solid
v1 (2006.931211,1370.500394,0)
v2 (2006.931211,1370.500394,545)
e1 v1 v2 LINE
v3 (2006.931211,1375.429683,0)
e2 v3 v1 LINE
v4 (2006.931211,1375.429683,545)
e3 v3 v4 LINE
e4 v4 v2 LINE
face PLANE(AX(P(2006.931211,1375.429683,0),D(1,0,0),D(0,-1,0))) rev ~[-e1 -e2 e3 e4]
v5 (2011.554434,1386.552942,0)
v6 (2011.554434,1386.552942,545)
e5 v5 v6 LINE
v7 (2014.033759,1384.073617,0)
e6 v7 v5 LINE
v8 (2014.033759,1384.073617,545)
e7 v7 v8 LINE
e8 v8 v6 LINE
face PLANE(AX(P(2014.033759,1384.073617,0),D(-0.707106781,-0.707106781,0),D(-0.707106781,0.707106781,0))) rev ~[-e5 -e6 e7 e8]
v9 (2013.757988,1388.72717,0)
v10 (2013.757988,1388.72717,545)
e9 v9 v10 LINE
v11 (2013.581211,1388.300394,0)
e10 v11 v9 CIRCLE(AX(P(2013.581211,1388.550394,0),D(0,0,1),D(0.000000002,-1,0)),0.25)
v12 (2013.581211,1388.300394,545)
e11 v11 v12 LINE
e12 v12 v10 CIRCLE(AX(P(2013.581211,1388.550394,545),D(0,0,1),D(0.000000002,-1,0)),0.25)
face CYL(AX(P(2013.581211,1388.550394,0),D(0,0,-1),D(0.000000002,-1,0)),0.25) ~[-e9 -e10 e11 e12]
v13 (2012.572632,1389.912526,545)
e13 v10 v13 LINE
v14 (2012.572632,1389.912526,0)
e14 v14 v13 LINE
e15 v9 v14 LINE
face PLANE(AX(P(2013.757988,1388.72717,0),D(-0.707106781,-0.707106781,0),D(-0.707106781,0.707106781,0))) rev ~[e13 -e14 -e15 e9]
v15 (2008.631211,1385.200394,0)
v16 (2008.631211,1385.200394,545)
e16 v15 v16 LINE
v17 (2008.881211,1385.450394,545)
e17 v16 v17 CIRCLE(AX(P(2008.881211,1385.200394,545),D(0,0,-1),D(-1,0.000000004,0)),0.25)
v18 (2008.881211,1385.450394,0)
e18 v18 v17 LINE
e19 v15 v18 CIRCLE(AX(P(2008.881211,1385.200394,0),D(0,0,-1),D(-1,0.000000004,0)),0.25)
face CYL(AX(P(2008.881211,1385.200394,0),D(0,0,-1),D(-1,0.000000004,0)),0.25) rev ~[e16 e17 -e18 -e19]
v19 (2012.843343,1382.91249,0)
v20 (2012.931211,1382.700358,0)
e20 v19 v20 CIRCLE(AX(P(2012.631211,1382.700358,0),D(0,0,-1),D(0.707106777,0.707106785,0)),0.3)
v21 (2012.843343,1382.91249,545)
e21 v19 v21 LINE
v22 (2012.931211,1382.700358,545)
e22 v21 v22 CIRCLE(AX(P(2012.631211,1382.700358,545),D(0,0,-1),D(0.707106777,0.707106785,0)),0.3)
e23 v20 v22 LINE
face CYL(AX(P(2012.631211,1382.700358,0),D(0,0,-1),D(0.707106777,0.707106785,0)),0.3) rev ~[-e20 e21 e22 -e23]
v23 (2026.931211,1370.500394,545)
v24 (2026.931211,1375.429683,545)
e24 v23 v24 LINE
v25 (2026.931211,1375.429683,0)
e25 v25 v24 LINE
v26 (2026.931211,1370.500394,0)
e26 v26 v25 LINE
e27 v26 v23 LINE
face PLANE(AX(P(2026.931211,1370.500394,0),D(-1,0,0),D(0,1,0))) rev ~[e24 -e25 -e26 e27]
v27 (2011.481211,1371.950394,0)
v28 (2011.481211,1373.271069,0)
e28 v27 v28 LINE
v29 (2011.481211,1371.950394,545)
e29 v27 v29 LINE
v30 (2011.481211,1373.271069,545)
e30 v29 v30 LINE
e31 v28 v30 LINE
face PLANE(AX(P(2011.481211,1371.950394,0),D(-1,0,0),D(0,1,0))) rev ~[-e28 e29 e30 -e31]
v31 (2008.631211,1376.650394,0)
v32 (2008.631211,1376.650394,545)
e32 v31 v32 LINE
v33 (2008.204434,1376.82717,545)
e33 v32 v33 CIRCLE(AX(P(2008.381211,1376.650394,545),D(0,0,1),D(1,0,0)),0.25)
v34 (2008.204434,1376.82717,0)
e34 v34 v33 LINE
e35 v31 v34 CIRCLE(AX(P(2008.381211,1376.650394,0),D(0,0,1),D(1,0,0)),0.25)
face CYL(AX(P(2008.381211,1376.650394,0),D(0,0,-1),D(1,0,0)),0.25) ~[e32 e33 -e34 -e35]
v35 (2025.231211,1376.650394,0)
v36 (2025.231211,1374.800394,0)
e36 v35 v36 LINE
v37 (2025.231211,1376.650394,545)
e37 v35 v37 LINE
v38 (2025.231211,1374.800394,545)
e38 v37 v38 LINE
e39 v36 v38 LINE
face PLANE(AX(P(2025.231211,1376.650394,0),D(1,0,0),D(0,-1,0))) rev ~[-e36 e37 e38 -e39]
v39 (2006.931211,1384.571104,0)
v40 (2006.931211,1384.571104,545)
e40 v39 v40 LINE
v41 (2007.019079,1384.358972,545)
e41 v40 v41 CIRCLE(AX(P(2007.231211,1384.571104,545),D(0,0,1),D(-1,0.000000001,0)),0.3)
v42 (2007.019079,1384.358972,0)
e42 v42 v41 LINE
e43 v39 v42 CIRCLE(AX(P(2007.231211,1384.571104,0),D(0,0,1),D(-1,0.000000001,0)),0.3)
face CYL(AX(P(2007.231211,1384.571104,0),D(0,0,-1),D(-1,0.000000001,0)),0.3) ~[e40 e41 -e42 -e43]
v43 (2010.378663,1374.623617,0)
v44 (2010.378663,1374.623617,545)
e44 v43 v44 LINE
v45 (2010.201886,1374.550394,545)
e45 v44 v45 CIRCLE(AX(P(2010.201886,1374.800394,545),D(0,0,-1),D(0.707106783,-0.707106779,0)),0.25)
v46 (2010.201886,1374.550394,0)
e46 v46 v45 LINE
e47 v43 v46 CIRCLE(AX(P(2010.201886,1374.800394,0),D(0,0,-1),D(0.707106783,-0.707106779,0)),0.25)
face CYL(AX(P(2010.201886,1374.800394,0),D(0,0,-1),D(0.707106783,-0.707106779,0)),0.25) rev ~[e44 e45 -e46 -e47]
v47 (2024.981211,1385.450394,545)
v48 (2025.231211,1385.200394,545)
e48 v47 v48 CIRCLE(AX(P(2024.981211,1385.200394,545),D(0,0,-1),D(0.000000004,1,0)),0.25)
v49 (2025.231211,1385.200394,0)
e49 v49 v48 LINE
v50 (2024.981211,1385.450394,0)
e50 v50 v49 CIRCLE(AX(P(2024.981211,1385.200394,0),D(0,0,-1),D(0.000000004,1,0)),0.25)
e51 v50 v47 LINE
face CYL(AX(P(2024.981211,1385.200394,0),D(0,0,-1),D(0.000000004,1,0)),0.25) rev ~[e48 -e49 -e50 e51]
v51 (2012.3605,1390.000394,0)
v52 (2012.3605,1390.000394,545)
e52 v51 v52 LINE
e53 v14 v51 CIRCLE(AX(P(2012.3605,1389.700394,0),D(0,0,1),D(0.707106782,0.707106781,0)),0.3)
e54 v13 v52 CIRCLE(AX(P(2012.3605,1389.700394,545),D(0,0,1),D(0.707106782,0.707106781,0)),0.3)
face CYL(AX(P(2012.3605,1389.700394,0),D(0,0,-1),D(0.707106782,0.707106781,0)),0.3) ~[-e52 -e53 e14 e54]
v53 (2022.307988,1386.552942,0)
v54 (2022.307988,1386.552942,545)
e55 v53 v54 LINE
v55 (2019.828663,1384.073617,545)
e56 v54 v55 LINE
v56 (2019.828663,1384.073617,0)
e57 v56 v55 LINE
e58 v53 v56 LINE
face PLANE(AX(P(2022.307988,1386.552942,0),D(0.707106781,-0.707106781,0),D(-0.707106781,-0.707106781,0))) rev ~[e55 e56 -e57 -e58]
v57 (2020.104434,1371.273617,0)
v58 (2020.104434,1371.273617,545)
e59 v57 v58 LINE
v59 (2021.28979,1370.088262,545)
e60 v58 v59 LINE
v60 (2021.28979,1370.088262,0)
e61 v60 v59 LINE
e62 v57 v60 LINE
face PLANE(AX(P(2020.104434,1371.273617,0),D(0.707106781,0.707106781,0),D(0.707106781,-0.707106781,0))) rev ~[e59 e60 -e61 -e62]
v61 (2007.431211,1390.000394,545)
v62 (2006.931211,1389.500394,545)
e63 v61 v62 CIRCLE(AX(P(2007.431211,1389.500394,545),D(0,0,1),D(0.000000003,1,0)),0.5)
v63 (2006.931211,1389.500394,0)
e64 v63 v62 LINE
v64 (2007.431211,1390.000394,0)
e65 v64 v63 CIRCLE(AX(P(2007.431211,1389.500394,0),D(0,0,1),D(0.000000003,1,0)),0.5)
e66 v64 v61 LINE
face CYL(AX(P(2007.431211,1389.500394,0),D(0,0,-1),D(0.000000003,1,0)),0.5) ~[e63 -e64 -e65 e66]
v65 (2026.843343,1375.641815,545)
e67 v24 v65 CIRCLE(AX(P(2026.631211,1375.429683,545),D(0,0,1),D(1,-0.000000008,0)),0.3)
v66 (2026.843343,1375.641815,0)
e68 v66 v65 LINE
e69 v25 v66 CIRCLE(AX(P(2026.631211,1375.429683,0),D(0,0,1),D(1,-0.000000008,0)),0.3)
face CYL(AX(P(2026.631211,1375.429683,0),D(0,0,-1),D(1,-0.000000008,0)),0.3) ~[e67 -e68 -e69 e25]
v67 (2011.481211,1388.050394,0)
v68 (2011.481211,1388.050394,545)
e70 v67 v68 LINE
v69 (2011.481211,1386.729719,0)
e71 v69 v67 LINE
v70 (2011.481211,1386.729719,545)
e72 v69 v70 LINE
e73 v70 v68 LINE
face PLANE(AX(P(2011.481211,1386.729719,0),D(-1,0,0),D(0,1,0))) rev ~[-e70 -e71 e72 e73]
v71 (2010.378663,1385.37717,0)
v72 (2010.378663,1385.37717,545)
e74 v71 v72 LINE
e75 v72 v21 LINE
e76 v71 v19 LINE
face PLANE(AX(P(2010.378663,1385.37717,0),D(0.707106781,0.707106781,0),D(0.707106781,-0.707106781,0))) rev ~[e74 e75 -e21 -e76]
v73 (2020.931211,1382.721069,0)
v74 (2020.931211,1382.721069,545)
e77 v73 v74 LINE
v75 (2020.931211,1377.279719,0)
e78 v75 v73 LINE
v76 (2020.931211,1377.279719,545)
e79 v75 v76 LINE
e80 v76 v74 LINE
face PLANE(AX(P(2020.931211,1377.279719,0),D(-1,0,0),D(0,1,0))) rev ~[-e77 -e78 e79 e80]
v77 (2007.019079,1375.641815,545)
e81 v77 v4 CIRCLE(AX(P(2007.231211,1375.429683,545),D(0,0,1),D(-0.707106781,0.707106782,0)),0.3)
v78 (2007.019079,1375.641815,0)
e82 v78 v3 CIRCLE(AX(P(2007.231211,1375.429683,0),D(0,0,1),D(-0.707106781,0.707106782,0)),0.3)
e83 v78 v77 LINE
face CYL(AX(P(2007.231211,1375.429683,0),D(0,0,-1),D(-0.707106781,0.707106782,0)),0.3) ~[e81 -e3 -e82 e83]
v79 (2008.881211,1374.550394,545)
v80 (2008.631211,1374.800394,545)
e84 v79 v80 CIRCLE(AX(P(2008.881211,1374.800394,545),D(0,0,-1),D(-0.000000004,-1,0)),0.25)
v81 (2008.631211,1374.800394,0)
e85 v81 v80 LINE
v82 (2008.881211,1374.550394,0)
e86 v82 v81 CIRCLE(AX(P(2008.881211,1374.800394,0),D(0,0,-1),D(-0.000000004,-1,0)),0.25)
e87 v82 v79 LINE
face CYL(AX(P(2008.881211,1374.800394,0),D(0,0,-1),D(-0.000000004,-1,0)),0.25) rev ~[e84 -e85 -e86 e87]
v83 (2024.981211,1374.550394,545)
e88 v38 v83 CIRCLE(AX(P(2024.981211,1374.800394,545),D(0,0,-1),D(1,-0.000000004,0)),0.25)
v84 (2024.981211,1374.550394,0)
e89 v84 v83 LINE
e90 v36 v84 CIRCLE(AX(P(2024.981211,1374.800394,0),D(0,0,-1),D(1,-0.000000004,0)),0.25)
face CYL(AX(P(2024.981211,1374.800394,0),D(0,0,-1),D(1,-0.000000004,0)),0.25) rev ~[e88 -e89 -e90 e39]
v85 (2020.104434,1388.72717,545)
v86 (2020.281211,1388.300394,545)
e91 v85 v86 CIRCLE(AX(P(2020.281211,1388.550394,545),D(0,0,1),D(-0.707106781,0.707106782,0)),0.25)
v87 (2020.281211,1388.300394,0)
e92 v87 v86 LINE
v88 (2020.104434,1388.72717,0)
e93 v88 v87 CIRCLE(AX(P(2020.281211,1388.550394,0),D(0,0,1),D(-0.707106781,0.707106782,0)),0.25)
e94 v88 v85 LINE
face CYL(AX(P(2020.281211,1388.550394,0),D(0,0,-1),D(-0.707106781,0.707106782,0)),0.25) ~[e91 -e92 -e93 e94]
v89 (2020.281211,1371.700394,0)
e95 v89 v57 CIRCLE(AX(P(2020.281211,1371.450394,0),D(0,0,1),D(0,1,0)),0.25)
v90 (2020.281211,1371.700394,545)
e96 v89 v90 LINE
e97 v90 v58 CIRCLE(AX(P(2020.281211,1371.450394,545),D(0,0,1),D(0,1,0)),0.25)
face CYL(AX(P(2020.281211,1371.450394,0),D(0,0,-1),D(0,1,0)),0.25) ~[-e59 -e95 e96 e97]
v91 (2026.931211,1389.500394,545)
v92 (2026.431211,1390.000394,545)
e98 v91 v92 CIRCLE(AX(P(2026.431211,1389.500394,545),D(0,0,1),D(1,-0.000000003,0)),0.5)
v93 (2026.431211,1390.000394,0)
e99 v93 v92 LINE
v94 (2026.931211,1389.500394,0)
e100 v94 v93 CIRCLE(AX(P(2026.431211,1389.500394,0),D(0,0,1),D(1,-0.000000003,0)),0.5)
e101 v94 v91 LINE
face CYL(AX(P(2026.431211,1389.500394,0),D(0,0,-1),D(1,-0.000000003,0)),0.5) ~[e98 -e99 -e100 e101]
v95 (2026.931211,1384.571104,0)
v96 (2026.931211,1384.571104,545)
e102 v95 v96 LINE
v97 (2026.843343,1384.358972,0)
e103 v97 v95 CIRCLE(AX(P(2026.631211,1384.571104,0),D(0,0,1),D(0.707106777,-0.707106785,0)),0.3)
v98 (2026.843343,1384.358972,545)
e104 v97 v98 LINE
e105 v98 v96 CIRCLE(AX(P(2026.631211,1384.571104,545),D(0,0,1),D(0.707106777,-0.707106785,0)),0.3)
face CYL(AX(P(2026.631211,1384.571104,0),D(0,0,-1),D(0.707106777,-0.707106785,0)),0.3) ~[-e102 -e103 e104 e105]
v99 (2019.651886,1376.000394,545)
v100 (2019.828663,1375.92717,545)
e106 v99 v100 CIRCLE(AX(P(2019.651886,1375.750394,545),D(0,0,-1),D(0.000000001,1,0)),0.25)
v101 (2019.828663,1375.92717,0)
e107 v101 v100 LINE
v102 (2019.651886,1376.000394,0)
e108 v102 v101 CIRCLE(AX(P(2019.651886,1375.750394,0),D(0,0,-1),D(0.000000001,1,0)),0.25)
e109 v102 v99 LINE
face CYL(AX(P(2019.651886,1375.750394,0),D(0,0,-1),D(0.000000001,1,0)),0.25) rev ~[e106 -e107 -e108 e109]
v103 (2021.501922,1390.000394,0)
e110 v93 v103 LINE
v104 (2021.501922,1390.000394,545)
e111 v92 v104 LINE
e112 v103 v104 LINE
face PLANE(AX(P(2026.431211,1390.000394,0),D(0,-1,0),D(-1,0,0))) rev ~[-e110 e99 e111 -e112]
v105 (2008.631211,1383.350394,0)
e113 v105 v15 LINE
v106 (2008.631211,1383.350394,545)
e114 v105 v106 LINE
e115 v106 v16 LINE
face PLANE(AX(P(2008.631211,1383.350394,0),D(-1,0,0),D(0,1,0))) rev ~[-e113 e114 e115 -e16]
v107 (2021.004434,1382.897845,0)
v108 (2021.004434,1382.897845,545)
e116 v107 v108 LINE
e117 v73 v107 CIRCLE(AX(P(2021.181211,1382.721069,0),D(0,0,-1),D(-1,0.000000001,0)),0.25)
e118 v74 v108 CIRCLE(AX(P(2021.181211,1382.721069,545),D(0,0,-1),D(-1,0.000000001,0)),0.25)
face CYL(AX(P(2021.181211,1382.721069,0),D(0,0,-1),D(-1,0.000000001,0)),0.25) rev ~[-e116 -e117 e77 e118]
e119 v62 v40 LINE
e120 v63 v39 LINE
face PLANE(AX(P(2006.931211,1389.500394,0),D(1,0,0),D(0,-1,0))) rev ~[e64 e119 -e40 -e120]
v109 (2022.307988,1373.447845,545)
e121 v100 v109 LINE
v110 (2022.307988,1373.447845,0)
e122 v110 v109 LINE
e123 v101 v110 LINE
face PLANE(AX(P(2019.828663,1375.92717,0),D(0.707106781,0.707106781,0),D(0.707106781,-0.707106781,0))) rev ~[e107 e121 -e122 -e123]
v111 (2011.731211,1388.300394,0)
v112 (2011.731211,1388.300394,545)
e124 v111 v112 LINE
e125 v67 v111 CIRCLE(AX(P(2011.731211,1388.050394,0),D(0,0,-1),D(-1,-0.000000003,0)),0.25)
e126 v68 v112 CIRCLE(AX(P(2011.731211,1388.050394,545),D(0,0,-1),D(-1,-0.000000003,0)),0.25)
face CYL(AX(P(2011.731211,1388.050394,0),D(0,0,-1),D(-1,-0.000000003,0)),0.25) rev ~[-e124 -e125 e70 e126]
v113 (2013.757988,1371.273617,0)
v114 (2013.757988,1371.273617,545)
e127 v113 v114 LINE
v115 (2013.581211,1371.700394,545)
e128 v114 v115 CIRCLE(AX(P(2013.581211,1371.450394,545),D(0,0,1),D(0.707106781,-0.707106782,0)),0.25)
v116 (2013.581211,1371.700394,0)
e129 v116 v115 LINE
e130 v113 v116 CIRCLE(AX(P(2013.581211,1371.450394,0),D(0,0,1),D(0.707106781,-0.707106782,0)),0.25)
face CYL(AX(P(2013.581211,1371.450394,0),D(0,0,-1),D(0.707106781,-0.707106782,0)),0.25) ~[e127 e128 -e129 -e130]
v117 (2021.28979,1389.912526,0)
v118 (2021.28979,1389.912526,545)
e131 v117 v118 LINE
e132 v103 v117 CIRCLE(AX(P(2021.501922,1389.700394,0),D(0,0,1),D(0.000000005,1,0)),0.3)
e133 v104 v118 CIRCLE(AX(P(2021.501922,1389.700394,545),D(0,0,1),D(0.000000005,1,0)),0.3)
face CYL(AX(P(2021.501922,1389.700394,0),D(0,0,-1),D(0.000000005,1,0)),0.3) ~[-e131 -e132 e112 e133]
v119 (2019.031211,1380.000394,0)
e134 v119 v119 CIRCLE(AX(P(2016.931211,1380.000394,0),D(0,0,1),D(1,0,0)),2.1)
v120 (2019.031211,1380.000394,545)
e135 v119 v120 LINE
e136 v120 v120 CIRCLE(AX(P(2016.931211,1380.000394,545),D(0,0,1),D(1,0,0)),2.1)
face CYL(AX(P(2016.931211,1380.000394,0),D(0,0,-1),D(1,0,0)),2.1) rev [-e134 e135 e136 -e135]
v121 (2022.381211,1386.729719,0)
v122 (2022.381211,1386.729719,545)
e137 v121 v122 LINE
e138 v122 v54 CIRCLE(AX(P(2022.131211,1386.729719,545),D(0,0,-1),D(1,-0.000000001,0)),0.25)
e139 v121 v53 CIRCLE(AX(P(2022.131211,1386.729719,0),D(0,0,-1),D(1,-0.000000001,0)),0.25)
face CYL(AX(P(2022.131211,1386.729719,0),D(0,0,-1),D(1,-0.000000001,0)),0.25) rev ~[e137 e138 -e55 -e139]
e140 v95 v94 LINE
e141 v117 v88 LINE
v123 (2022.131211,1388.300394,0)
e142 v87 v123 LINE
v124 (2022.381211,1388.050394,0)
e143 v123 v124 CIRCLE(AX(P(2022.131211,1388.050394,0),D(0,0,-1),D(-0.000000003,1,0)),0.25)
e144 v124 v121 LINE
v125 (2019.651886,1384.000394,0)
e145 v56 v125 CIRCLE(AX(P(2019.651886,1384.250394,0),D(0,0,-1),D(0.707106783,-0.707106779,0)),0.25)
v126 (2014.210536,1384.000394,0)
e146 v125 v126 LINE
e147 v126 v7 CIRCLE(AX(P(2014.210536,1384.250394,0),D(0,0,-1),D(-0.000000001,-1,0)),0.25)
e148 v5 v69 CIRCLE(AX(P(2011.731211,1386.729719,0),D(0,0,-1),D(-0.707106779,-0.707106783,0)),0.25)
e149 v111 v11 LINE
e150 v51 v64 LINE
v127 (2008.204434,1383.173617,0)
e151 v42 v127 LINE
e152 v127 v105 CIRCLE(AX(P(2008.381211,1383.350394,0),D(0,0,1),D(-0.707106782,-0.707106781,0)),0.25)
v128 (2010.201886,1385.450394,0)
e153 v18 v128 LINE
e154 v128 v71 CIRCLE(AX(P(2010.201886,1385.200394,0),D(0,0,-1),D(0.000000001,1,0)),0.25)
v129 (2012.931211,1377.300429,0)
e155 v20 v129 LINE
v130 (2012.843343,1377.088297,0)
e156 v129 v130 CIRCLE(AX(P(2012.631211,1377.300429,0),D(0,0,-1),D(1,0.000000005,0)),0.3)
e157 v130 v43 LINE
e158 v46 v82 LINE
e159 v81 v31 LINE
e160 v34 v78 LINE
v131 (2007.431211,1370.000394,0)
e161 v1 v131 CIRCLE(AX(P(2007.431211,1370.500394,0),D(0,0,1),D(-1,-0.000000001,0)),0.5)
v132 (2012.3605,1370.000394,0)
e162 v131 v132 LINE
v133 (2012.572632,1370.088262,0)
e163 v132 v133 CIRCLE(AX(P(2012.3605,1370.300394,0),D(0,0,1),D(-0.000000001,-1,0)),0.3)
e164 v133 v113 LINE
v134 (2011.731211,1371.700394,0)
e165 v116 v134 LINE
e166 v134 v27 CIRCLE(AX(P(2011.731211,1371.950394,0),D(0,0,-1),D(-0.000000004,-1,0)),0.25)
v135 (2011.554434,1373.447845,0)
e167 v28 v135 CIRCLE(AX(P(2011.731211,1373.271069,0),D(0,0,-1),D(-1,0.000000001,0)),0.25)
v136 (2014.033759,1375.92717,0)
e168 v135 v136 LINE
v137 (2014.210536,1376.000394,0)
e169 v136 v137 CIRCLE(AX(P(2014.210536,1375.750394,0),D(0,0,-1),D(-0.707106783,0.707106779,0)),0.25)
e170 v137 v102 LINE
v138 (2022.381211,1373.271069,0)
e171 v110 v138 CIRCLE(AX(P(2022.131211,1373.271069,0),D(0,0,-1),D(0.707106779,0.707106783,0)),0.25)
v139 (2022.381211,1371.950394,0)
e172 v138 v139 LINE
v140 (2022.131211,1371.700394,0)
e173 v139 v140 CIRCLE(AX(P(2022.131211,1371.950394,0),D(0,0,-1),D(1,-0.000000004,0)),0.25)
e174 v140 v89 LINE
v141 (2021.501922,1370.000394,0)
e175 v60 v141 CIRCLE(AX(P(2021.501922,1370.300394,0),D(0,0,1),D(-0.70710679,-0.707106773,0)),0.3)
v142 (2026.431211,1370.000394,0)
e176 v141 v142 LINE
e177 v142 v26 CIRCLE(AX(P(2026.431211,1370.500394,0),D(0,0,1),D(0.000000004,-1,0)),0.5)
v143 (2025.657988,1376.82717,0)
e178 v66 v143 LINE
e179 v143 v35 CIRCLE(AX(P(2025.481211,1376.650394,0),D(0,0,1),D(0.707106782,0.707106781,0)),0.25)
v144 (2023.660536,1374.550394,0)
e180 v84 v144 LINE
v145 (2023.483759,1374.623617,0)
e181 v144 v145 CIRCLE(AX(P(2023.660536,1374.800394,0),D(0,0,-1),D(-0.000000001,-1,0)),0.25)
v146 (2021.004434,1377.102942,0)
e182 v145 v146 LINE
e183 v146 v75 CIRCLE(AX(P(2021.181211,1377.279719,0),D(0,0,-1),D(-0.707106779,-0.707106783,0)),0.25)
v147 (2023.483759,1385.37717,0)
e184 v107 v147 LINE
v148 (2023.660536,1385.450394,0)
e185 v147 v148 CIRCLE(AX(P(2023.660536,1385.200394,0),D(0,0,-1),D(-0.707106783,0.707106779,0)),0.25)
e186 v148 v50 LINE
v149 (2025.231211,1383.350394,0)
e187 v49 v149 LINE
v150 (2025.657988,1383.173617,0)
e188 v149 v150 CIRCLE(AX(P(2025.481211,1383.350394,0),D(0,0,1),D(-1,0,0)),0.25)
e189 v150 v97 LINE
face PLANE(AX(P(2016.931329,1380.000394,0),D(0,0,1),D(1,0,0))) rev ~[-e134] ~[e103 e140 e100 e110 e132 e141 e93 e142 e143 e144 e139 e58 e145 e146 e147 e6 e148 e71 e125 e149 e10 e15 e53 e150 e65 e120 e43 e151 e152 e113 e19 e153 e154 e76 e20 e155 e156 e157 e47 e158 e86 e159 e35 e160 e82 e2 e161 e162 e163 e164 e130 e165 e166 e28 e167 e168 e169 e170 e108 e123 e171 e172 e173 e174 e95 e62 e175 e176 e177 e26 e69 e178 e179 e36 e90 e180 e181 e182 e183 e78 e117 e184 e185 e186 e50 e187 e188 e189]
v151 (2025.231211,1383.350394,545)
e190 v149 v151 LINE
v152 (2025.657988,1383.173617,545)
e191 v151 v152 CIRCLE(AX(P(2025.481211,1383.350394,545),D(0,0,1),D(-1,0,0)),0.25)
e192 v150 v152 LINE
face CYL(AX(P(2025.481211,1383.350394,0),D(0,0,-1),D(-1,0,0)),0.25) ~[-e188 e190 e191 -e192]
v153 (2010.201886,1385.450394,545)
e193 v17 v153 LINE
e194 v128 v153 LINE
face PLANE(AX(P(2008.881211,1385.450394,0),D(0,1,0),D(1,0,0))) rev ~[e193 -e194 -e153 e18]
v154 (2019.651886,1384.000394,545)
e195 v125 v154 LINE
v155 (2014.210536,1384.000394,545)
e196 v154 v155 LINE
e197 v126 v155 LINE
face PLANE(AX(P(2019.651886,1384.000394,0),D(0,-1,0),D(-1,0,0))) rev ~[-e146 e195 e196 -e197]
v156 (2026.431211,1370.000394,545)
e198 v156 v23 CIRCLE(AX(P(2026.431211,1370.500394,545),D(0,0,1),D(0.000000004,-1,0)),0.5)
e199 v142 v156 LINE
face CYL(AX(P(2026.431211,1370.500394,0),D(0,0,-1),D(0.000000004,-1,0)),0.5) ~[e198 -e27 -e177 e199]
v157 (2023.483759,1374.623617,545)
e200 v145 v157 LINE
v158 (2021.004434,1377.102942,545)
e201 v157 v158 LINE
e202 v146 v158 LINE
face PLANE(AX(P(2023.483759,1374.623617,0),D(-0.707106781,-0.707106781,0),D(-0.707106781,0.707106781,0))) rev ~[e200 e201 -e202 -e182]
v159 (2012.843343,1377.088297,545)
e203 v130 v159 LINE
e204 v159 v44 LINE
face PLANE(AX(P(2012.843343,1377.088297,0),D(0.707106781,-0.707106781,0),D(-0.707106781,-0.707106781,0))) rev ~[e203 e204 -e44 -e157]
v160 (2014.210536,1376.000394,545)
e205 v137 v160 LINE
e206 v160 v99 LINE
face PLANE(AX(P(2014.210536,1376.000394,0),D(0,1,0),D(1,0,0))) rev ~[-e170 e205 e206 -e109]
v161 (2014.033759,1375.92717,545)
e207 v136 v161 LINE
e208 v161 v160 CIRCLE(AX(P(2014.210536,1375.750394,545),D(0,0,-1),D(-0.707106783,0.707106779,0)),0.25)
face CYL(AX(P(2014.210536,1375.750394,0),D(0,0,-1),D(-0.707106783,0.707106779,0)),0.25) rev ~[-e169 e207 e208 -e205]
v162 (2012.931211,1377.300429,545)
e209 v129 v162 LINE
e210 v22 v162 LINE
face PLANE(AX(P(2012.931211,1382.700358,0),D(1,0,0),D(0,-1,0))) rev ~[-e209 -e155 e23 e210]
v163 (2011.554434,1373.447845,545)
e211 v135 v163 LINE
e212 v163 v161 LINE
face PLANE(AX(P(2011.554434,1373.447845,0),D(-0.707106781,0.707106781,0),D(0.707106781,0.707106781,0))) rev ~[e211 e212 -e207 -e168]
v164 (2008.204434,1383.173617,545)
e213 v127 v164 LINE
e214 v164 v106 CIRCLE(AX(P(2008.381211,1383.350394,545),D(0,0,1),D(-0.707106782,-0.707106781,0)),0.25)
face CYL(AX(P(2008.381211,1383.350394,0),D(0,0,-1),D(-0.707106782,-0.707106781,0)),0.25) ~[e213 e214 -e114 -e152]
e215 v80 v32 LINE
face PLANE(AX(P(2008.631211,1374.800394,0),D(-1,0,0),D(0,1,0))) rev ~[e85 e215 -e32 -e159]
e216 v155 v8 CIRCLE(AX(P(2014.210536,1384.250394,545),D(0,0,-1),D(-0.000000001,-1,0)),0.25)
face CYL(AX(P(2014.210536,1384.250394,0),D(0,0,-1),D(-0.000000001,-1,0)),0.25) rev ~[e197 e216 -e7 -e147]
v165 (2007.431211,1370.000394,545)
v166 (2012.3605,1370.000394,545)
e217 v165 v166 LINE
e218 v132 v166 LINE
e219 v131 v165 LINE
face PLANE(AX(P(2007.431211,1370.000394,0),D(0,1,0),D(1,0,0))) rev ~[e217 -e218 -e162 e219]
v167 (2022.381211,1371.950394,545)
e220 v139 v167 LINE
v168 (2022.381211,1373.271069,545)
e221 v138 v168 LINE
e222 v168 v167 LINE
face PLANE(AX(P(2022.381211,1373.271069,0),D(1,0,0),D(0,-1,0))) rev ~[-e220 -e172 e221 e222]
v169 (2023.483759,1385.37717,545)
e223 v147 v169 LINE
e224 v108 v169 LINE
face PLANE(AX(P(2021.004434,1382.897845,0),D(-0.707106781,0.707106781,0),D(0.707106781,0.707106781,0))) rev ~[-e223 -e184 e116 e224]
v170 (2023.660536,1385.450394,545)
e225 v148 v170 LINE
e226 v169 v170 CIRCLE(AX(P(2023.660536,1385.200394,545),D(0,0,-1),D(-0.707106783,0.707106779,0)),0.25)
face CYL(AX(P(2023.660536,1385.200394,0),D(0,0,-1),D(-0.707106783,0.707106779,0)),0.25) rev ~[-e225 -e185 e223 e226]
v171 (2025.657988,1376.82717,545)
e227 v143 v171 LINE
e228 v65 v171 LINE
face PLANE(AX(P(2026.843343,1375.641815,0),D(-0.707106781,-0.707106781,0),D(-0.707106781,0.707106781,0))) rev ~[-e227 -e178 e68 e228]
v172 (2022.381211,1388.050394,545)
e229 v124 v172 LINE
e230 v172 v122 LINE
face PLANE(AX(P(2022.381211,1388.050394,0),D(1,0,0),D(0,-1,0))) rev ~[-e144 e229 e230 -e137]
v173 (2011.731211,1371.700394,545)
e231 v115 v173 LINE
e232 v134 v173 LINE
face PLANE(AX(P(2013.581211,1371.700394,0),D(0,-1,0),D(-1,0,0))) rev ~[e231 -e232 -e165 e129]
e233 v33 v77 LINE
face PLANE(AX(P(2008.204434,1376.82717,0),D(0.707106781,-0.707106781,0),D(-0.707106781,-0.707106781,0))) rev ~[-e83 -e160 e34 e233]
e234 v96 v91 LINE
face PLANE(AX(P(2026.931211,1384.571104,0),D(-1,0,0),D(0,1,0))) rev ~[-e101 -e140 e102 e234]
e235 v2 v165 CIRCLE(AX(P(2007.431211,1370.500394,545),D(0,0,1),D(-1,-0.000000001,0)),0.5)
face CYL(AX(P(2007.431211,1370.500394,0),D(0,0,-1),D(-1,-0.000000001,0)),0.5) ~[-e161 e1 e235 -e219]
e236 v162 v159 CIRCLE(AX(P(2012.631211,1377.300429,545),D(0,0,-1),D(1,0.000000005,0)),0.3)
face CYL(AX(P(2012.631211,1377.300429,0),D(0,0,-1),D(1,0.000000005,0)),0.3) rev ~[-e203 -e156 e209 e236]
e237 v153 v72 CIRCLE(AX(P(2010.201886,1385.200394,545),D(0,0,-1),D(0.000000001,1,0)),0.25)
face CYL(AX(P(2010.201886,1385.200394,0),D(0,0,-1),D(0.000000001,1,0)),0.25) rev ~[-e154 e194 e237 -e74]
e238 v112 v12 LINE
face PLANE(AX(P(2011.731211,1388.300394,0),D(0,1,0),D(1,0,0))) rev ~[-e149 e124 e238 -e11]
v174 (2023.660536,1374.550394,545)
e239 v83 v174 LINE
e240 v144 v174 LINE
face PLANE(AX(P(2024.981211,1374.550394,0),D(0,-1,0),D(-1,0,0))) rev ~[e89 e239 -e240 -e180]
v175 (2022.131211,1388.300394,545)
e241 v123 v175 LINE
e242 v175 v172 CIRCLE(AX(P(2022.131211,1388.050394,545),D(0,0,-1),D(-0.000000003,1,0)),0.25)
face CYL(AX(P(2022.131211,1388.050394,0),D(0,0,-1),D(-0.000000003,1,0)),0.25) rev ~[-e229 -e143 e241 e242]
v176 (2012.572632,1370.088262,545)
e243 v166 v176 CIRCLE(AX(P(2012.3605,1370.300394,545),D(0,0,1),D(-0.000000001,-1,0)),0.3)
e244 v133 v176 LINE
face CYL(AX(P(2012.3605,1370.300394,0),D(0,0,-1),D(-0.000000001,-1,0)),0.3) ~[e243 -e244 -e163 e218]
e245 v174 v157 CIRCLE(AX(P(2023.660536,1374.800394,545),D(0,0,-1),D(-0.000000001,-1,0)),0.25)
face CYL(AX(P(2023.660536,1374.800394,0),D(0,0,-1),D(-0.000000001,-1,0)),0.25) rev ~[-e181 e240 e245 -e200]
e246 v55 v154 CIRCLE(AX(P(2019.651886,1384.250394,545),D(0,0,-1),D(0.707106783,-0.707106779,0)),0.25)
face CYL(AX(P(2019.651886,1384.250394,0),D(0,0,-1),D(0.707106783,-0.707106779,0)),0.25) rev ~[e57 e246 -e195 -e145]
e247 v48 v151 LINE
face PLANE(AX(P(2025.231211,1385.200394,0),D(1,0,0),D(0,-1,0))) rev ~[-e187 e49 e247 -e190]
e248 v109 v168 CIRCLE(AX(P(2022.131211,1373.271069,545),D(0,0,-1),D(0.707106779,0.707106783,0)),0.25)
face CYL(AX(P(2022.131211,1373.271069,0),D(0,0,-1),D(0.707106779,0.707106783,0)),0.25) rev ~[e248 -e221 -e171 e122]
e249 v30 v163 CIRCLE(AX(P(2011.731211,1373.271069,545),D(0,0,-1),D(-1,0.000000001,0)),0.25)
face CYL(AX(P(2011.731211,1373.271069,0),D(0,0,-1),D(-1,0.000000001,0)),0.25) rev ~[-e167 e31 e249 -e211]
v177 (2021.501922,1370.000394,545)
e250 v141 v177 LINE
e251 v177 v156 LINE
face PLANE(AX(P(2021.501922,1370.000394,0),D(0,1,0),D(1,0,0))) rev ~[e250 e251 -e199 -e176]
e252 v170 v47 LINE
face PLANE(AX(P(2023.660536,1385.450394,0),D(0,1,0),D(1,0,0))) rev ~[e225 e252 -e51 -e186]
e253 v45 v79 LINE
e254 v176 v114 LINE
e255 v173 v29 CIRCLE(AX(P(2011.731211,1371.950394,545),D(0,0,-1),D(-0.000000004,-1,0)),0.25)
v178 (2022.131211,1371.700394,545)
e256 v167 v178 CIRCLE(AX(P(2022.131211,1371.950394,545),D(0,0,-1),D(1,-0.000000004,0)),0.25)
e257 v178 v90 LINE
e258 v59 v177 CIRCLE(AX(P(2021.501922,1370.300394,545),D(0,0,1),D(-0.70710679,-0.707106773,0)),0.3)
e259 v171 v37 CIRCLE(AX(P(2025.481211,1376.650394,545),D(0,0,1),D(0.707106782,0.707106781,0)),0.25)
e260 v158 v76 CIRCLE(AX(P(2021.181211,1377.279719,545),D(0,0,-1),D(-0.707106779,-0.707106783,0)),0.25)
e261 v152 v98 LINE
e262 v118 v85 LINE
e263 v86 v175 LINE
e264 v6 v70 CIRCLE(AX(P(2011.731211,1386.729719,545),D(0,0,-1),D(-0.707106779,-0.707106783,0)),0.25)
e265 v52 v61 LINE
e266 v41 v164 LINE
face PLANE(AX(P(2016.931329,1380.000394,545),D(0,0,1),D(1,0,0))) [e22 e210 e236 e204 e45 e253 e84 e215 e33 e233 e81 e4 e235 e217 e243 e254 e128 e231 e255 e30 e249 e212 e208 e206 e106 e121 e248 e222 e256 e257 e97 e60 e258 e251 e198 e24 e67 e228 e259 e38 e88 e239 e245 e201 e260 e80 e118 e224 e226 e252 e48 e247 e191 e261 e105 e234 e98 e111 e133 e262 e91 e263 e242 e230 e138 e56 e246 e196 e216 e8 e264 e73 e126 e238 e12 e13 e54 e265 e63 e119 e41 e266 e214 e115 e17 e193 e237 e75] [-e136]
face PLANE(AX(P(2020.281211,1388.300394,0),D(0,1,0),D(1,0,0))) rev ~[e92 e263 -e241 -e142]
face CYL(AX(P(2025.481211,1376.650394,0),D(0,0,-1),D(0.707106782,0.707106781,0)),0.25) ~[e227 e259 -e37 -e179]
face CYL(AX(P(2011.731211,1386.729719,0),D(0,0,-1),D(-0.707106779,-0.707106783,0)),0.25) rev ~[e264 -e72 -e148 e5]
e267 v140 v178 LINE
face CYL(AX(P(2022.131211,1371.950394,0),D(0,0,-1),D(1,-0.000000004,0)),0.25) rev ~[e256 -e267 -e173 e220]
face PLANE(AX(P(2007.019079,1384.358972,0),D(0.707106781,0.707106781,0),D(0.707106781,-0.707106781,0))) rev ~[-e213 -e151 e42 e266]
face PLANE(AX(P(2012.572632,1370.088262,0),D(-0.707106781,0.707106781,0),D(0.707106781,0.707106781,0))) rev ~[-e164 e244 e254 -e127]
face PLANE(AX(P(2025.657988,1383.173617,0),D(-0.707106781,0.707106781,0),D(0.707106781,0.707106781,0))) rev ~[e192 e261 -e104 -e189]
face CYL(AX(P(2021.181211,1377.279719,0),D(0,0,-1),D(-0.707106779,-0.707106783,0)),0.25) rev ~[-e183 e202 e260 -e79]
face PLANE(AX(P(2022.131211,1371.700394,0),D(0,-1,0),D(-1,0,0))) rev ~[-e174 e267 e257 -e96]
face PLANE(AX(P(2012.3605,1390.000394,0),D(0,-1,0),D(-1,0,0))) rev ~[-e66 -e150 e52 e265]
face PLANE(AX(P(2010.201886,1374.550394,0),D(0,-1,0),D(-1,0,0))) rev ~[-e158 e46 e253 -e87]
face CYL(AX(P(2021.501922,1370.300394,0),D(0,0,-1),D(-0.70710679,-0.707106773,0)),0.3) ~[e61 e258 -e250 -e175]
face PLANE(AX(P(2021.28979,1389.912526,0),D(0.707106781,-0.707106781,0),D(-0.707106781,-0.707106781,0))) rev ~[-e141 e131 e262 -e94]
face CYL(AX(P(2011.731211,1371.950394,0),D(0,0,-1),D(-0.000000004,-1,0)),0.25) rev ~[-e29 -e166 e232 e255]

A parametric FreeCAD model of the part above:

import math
import FreeCAD as App
import Part
import Sketcher

V = App.Vector
Q = App.Units.Quantity

doc = App.newDocument("Part")
body = doc.addObject("PartDesign::Body", "Body")

sketch1 = body.newObject("Sketcher::SketchObject", "Sketch")
sketch1.AttachmentSupport = (doc.getObject("XY_Plane"), [""])
sketch1.MapMode = "FlatFace"
sketch1.addGeometry([
    Part.ArcOfCircle(Part.Circle(V(2012.631211, 1377.300429, 0), V(0, 0, 1), 0.3), math.radians(-45), math.radians(0)),
    Part.LineSegment(V(2012.843343, 1377.088297, 0), V(2010.378663, 1374.623617, 0)),
    Part.ArcOfCircle(Part.Circle(V(2010.201886, 1374.800394, 0), V(0, 0, 1), 0.25), math.radians(-90), math.radians(-45)),
    Part.LineSegment(V(2010.201886, 1374.550394, 0), V(2008.881211, 1374.550394, 0)),
    Part.ArcOfCircle(Part.Circle(V(2008.881211, 1374.800394, 0), V(0, 0, 1), 0.25), math.radians(-180), math.radians(-90)),
    Part.LineSegment(V(2008.631211, 1374.800394, 0), V(2008.631211, 1376.650394, 0)),
    Part.ArcOfCircle(Part.Circle(V(2008.381211, 1376.650394, 0), V(0, 0, 1), 0.25), math.radians(0), math.radians(135)),
    Part.LineSegment(V(2008.204434, 1376.82717, 0), V(2007.019079, 1375.641815, 0)),
    Part.ArcOfCircle(Part.Circle(V(2007.231211, 1375.429683, 0), V(0, 0, 1), 0.3), math.radians(135), math.radians(180)),
    Part.LineSegment(V(2006.931211, 1375.429683, 0), V(2006.931211, 1370.500394, 0)),
    Part.ArcOfCircle(Part.Circle(V(2007.431211, 1370.500394, 0), V(0, 0, 1), 0.5), math.radians(180), math.radians(270)),
    Part.LineSegment(V(2007.431211, 1370.000394, 0), V(2012.3605, 1370.000394, 0)),
    Part.ArcOfCircle(Part.Circle(V(2012.3605, 1370.300394, 0), V(0, 0, 1), 0.3), math.radians(-90), math.radians(-45)),
    Part.LineSegment(V(2012.572632, 1370.088262, 0), V(2013.757988, 1371.273617, 0)),
    Part.ArcOfCircle(Part.Circle(V(2013.581211, 1371.450394, 0), V(0, 0, 1), 0.25), math.radians(-45), math.radians(90)),
    Part.LineSegment(V(2013.581211, 1371.700394, 0), V(2011.731211, 1371.700394, 0)),
    Part.ArcOfCircle(Part.Circle(V(2011.731211, 1371.950394, 0), V(0, 0, 1), 0.25), math.radians(-180), math.radians(-90)),
    Part.LineSegment(V(2011.481211, 1371.950394, 0), V(2011.481211, 1373.271069, 0)),
    Part.ArcOfCircle(Part.Circle(V(2011.731211, 1373.271069, 0), V(0, 0, 1), 0.25), math.radians(135), math.radians(180)),
    Part.LineSegment(V(2011.554434, 1373.447845, 0), V(2014.033759, 1375.92717, 0)),
    Part.ArcOfCircle(Part.Circle(V(2014.210536, 1375.750394, 0), V(0, 0, 1), 0.25), math.radians(90), math.radians(135)),
    Part.LineSegment(V(2014.210536, 1376.000394, 0), V(2019.651886, 1376.000394, 0)),
    Part.ArcOfCircle(Part.Circle(V(2019.651886, 1375.750394, 0), V(0, 0, 1), 0.25), math.radians(45), math.radians(90)),
    Part.LineSegment(V(2019.828663, 1375.92717, 0), V(2022.307988, 1373.447845, 0)),
    Part.ArcOfCircle(Part.Circle(V(2022.131211, 1373.271069, 0), V(0, 0, 1), 0.25), math.radians(0), math.radians(45)),
    Part.LineSegment(V(2022.381211, 1373.271069, 0), V(2022.381211, 1371.950394, 0)),
    Part.ArcOfCircle(Part.Circle(V(2022.131211, 1371.950394, 0), V(0, 0, 1), 0.25), math.radians(-90), math.radians(0)),
    Part.LineSegment(V(2022.131211, 1371.700394, 0), V(2020.281211, 1371.700394, 0)),
    Part.ArcOfCircle(Part.Circle(V(2020.281211, 1371.450394, 0), V(0, 0, 1), 0.25), math.radians(90), math.radians(225)),
    Part.LineSegment(V(2020.104434, 1371.273617, 0), V(2021.28979, 1370.088262, 0)),
    Part.ArcOfCircle(Part.Circle(V(2021.501922, 1370.300394, 0), V(0, 0, 1), 0.3), math.radians(-135.000001), math.radians(-90)),
    Part.LineSegment(V(2021.501922, 1370.000394, 0), V(2026.431211, 1370.000394, 0)),
    Part.ArcOfCircle(Part.Circle(V(2026.431211, 1370.500394, 0), V(0, 0, 1), 0.5), math.radians(-90), math.radians(0)),
    Part.LineSegment(V(2026.931211, 1370.500394, 0), V(2026.931211, 1375.429683, 0)),
    Part.ArcOfCircle(Part.Circle(V(2026.631211, 1375.429683, 0), V(0, 0, 1), 0.3), math.radians(0), math.radians(45.000001)),
    Part.LineSegment(V(2026.843343, 1375.641815, 0), V(2025.657988, 1376.82717, 0)),
    Part.ArcOfCircle(Part.Circle(V(2025.481211, 1376.650394, 0), V(0, 0, 1), 0.25), math.radians(45), math.radians(180)),
    Part.LineSegment(V(2025.231211, 1376.650394, 0), V(2025.231211, 1374.800394, 0)),
    Part.ArcOfCircle(Part.Circle(V(2024.981211, 1374.800394, 0), V(0, 0, 1), 0.25), math.radians(-90), math.radians(0)),
    Part.LineSegment(V(2024.981211, 1374.550394, 0), V(2023.660536, 1374.550394, 0)),
    Part.ArcOfCircle(Part.Circle(V(2023.660536, 1374.800394, 0), V(0, 0, 1), 0.25), math.radians(-135), math.radians(-90)),
    Part.LineSegment(V(2023.483759, 1374.623617, 0), V(2021.004434, 1377.102942, 0)),
    Part.ArcOfCircle(Part.Circle(V(2021.181211, 1377.279719, 0), V(0, 0, 1), 0.25), math.radians(180), math.radians(225)),
    Part.LineSegment(V(2020.931211, 1377.279719, 0), V(2020.931211, 1382.721069, 0)),
    Part.ArcOfCircle(Part.Circle(V(2021.181211, 1382.721069, 0), V(0, 0, 1), 0.25), math.radians(135), math.radians(180)),
    Part.LineSegment(V(2021.004434, 1382.897845, 0), V(2023.483759, 1385.37717, 0)),
    Part.ArcOfCircle(Part.Circle(V(2023.660536, 1385.200394, 0), V(0, 0, 1), 0.25), math.radians(90), math.radians(135)),
    Part.LineSegment(V(2023.660536, 1385.450394, 0), V(2024.981211, 1385.450394, 0)),
    Part.ArcOfCircle(Part.Circle(V(2024.981211, 1385.200394, 0), V(0, 0, 1), 0.25), math.radians(0), math.radians(90)),
    Part.LineSegment(V(2025.231211, 1385.200394, 0), V(2025.231211, 1383.350394, 0)),
    Part.ArcOfCircle(Part.Circle(V(2025.481211, 1383.350394, 0), V(0, 0, 1), 0.25), math.radians(180), math.radians(315)),
    Part.LineSegment(V(2025.657988, 1383.173617, 0), V(2026.843343, 1384.358972, 0)),
    Part.ArcOfCircle(Part.Circle(V(2026.631211, 1384.571104, 0), V(0, 0, 1), 0.3), math.radians(-45), math.radians(0)),
    Part.LineSegment(V(2026.931211, 1384.571104, 0), V(2026.931211, 1389.500394, 0)),
    Part.ArcOfCircle(Part.Circle(V(2026.431211, 1389.500394, 0), V(0, 0, 1), 0.5), math.radians(0), math.radians(90)),
    Part.LineSegment(V(2026.431211, 1390.000394, 0), V(2021.501922, 1390.000394, 0)),
    Part.ArcOfCircle(Part.Circle(V(2021.501922, 1389.700394, 0), V(0, 0, 1), 0.3), math.radians(90), math.radians(135)),
    Part.LineSegment(V(2021.28979, 1389.912526, 0), V(2020.104434, 1388.72717, 0)),
    Part.ArcOfCircle(Part.Circle(V(2020.281211, 1388.550394, 0), V(0, 0, 1), 0.25), math.radians(135), math.radians(270)),
    Part.LineSegment(V(2020.281211, 1388.300394, 0), V(2022.131211, 1388.300394, 0)),
    Part.ArcOfCircle(Part.Circle(V(2022.131211, 1388.050394, 0), V(0, 0, 1), 0.25), math.radians(0), math.radians(90)),
    Part.LineSegment(V(2022.381211, 1388.050394, 0), V(2022.381211, 1386.729719, 0)),
    Part.ArcOfCircle(Part.Circle(V(2022.131211, 1386.729719, 0), V(0, 0, 1), 0.25), math.radians(-45), math.radians(0)),
    Part.LineSegment(V(2022.307988, 1386.552942, 0), V(2019.828663, 1384.073617, 0)),
    Part.ArcOfCircle(Part.Circle(V(2019.651886, 1384.250394, 0), V(0, 0, 1), 0.25), math.radians(-90), math.radians(-45)),
    Part.LineSegment(V(2019.651886, 1384.000394, 0), V(2014.210536, 1384.000394, 0)),
    Part.ArcOfCircle(Part.Circle(V(2014.210536, 1384.250394, 0), V(0, 0, 1), 0.25), math.radians(-135), math.radians(-90)),
    Part.LineSegment(V(2014.033759, 1384.073617, 0), V(2011.554434, 1386.552942, 0)),
    Part.ArcOfCircle(Part.Circle(V(2011.731211, 1386.729719, 0), V(0, 0, 1), 0.25), math.radians(180), math.radians(225)),
    Part.LineSegment(V(2011.481211, 1386.729719, 0), V(2011.481211, 1388.050394, 0)),
    Part.ArcOfCircle(Part.Circle(V(2011.731211, 1388.050394, 0), V(0, 0, 1), 0.25), math.radians(90), math.radians(180)),
    Part.LineSegment(V(2011.731211, 1388.300394, 0), V(2013.581211, 1388.300394, 0)),
    Part.ArcOfCircle(Part.Circle(V(2013.581211, 1388.550394, 0), V(0, 0, 1), 0.25), math.radians(-90), math.radians(45)),
    Part.LineSegment(V(2013.757988, 1388.72717, 0), V(2012.572632, 1389.912526, 0)),
    Part.ArcOfCircle(Part.Circle(V(2012.3605, 1389.700394, 0), V(0, 0, 1), 0.3), math.radians(45), math.radians(90)),
    Part.LineSegment(V(2012.3605, 1390.000394, 0), V(2007.431211, 1390.000394, 0)),
    Part.ArcOfCircle(Part.Circle(V(2007.431211, 1389.500394, 0), V(0, 0, 1), 0.5), math.radians(90), math.radians(180)),
    Part.LineSegment(V(2006.931211, 1389.500394, 0), V(2006.931211, 1384.571104, 0)),
    Part.ArcOfCircle(Part.Circle(V(2007.231211, 1384.571104, 0), V(0, 0, 1), 0.3), math.radians(180), math.radians(225)),
    Part.LineSegment(V(2007.019079, 1384.358972, 0), V(2008.204434, 1383.173617, 0)),
    Part.ArcOfCircle(Part.Circle(V(2008.381211, 1383.350394, 0), V(0, 0, 1), 0.25), math.radians(-135), math.radians(0)),
    Part.LineSegment(V(2008.631211, 1383.350394, 0), V(2008.631211, 1385.200394, 0)),
    Part.ArcOfCircle(Part.Circle(V(2008.881211, 1385.200394, 0), V(0, 0, 1), 0.25), math.radians(90), math.radians(180)),
    Part.LineSegment(V(2008.881211, 1385.450394, 0), V(2010.201886, 1385.450394, 0)),
    Part.ArcOfCircle(Part.Circle(V(2010.201886, 1385.200394, 0), V(0, 0, 1), 0.25), math.radians(45), math.radians(90)),
    Part.LineSegment(V(2010.378663, 1385.37717, 0), V(2012.843343, 1382.91249, 0)),
    Part.ArcOfCircle(Part.Circle(V(2012.631211, 1382.700358, 0), V(0, 0, 1), 0.3), math.radians(0), math.radians(45)),
    Part.LineSegment(V(2012.931211, 1382.700358, 0), V(2012.931211, 1377.300429, 0)),
    Part.Circle(V(2016.931211, 1380.000394, 0), V(0, 0, 1), 2.1),
], False)
sketch1.addConstraint([
    Sketcher.Constraint("Tangent", 0, 1, 1, 1),
    Sketcher.Constraint("Tangent", 1, 2, 2, 2),
    Sketcher.Constraint("Tangent", 2, 1, 3, 1),
    Sketcher.Constraint("Tangent", 3, 2, 4, 2),
    Sketcher.Constraint("Tangent", 4, 1, 5, 1),
    Sketcher.Constraint("Tangent", 5, 2, 6, 1),
    Sketcher.Constraint("Tangent", 6, 2, 7, 1),
    Sketcher.Constraint("Tangent", 7, 2, 8, 1),
    Sketcher.Constraint("Tangent", 8, 2, 9, 1),
    Sketcher.Constraint("Tangent", 9, 2, 10, 1),
    Sketcher.Constraint("Tangent", 10, 2, 11, 1),
    Sketcher.Constraint("Tangent", 11, 2, 12, 1),
    Sketcher.Constraint("Tangent", 12, 2, 13, 1),
    Sketcher.Constraint("Tangent", 13, 2, 14, 1),
    Sketcher.Constraint("Tangent", 14, 2, 15, 1),
    Sketcher.Constraint("Tangent", 15, 2, 16, 2),
    Sketcher.Constraint("Tangent", 16, 1, 17, 1),
    Sketcher.Constraint("Tangent", 17, 2, 18, 2),
    Sketcher.Constraint("Tangent", 18, 1, 19, 1),
    Sketcher.Constraint("Tangent", 19, 2, 20, 2),
    Sketcher.Constraint("Tangent", 20, 1, 21, 1),
    Sketcher.Constraint("Tangent", 21, 2, 22, 2),
    Sketcher.Constraint("Tangent", 22, 1, 23, 1),
    Sketcher.Constraint("Tangent", 23, 2, 24, 2),
    Sketcher.Constraint("Tangent", 24, 1, 25, 1),
    Sketcher.Constraint("Tangent", 25, 2, 26, 2),
    Sketcher.Constraint("Tangent", 26, 1, 27, 1),
    Sketcher.Constraint("Tangent", 27, 2, 28, 1),
    Sketcher.Constraint("Tangent", 28, 2, 29, 1),
    Sketcher.Constraint("Tangent", 29, 2, 30, 1),
    Sketcher.Constraint("Tangent", 30, 2, 31, 1),
    Sketcher.Constraint("Tangent", 31, 2, 32, 1),
    Sketcher.Constraint("Tangent", 32, 2, 33, 1),
    Sketcher.Constraint("Tangent", 33, 2, 34, 1),
    Sketcher.Constraint("Tangent", 34, 2, 35, 1),
    Sketcher.Constraint("Tangent", 35, 2, 36, 1),
    Sketcher.Constraint("Tangent", 36, 2, 37, 1),
    Sketcher.Constraint("Tangent", 37, 2, 38, 2),
    Sketcher.Constraint("Tangent", 38, 1, 39, 1),
    Sketcher.Constraint("Tangent", 39, 2, 40, 2),
    Sketcher.Constraint("Tangent", 40, 1, 41, 1),
    Sketcher.Constraint("Tangent", 41, 2, 42, 2),
    Sketcher.Constraint("Tangent", 42, 1, 43, 1),
    Sketcher.Constraint("Tangent", 43, 2, 44, 2),
    Sketcher.Constraint("Tangent", 44, 1, 45, 1),
    Sketcher.Constraint("Tangent", 45, 2, 46, 2),
    Sketcher.Constraint("Tangent", 46, 1, 47, 1),
    Sketcher.Constraint("Tangent", 47, 2, 48, 2),
    Sketcher.Constraint("Tangent", 48, 1, 49, 1),
    Sketcher.Constraint("Tangent", 49, 2, 50, 1),
    Sketcher.Constraint("Tangent", 50, 2, 51, 1),
    Sketcher.Constraint("Tangent", 51, 2, 52, 1),
    Sketcher.Constraint("Tangent", 52, 2, 53, 1),
    Sketcher.Constraint("Tangent", 53, 2, 54, 1),
    Sketcher.Constraint("Tangent", 54, 2, 55, 1),
    Sketcher.Constraint("Tangent", 55, 2, 56, 1),
    Sketcher.Constraint("Tangent", 56, 2, 57, 1),
    Sketcher.Constraint("Tangent", 57, 2, 58, 1),
    Sketcher.Constraint("Tangent", 58, 2, 59, 1),
    Sketcher.Constraint("Tangent", 59, 2, 60, 2),
    Sketcher.Constraint("Tangent", 60, 1, 61, 1),
    Sketcher.Constraint("Tangent", 61, 2, 62, 2),
    Sketcher.Constraint("Tangent", 62, 1, 63, 1),
    Sketcher.Constraint("Tangent", 63, 2, 64, 2),
    Sketcher.Constraint("Tangent", 64, 1, 65, 1),
    Sketcher.Constraint("Tangent", 65, 2, 66, 2),
    Sketcher.Constraint("Tangent", 66, 1, 67, 1),
    Sketcher.Constraint("Tangent", 67, 2, 68, 2),
    Sketcher.Constraint("Tangent", 68, 1, 69, 1),
    Sketcher.Constraint("Tangent", 69, 2, 70, 2),
    Sketcher.Constraint("Tangent", 70, 1, 71, 1),
    Sketcher.Constraint("Tangent", 71, 2, 72, 1),
    Sketcher.Constraint("Tangent", 72, 2, 73, 1),
    Sketcher.Constraint("Tangent", 73, 2, 74, 1),
    Sketcher.Constraint("Tangent", 74, 2, 75, 1),
    Sketcher.Constraint("Tangent", 75, 2, 76, 1),
    Sketcher.Constraint("Tangent", 76, 2, 77, 1),
    Sketcher.Constraint("Tangent", 77, 2, 78, 1),
    Sketcher.Constraint("Tangent", 78, 2, 79, 1),
    Sketcher.Constraint("Tangent", 79, 2, 80, 1),
    Sketcher.Constraint("Tangent", 80, 2, 81, 1),
    Sketcher.Constraint("Tangent", 81, 2, 82, 2),
    Sketcher.Constraint("Tangent", 82, 1, 83, 1),
    Sketcher.Constraint("Tangent", 83, 2, 84, 2),
    Sketcher.Constraint("Tangent", 84, 1, 85, 1),
    Sketcher.Constraint("Tangent", 85, 2, 86, 2),
    Sketcher.Constraint("Tangent", 86, 1, 87, 1),
    Sketcher.Constraint("Tangent", 87, 2, 0, 2),
    Sketcher.Constraint("Horizontal", 3),
    Sketcher.Constraint("Vertical", 5),
    Sketcher.Constraint("Vertical", 9),
    Sketcher.Constraint("Horizontal", 11),
    Sketcher.Constraint("Horizontal", 15),
    Sketcher.Constraint("Vertical", 17),
    Sketcher.Constraint("Horizontal", 21),
    Sketcher.Constraint("Vertical", 25),
    Sketcher.Constraint("Horizontal", 27),
    Sketcher.Constraint("Horizontal", 31),
    Sketcher.Constraint("Vertical", 33),
    Sketcher.Constraint("Vertical", 37),
    Sketcher.Constraint("Horizontal", 39),
    Sketcher.Constraint("Vertical", 43),
    Sketcher.Constraint("Horizontal", 47),
    Sketcher.Constraint("Vertical", 49),
    Sketcher.Constraint("Vertical", 53),
    Sketcher.Constraint("Horizontal", 55),
    Sketcher.Constraint("Horizontal", 59),
    Sketcher.Constraint("Vertical", 61),
    Sketcher.Constraint("Horizontal", 65),
    Sketcher.Constraint("Vertical", 69),
    Sketcher.Constraint("Horizontal", 71),
    Sketcher.Constraint("Horizontal", 75),
    Sketcher.Constraint("Vertical", 77),
    Sketcher.Constraint("Vertical", 81),
    Sketcher.Constraint("Horizontal", 83),
    Sketcher.Constraint("Vertical", 87),
    Sketcher.Constraint("Equal", 2, 4),
    Sketcher.Constraint("Equal", 4, 6),
    Sketcher.Constraint("Equal", 0, 8),
    Sketcher.Constraint("Equal", 8, 12),
    Sketcher.Constraint("Equal", 6, 14),
    Sketcher.Constraint("Equal", 14, 16),
    Sketcher.Constraint("Equal", 16, 18),
    Sketcher.Constraint("Equal", 18, 20),
    Sketcher.Constraint("Equal", 20, 22),
    Sketcher.Constraint("Equal", 22, 24),
    Sketcher.Constraint("Equal", 24, 26),
    Sketcher.Constraint("Equal", 26, 28),
    Sketcher.Constraint("Equal", 12, 30),
    Sketcher.Constraint("Equal", 10, 32),
    Sketcher.Constraint("Equal", 30, 34),
    Sketcher.Constraint("Equal", 28, 36),
    Sketcher.Constraint("Equal", 36, 38),
    Sketcher.Constraint("Equal", 38, 40),
    Sketcher.Constraint("Equal", 40, 42),
    Sketcher.Constraint("Equal", 42, 44),
    Sketcher.Constraint("Equal", 44, 46),
    Sketcher.Constraint("Equal", 46, 48),
    Sketcher.Constraint("Equal", 48, 50),
    Sketcher.Constraint("Equal", 34, 52),
    Sketcher.Constraint("Equal", 32, 54),
    Sketcher.Constraint("Equal", 52, 56),
    Sketcher.Constraint("Equal", 50, 58),
    Sketcher.Constraint("Equal", 58, 60),
    Sketcher.Constraint("Equal", 60, 62),
    Sketcher.Constraint("Equal", 62, 64),
    Sketcher.Constraint("Equal", 64, 66),
    Sketcher.Constraint("Equal", 66, 68),
    Sketcher.Constraint("Equal", 68, 70),
    Sketcher.Constraint("Equal", 70, 72),
    Sketcher.Constraint("Equal", 56, 74),
    Sketcher.Constraint("Equal", 54, 76),
    Sketcher.Constraint("Equal", 74, 78),
    Sketcher.Constraint("Equal", 72, 80),
    Sketcher.Constraint("Equal", 80, 82),
    Sketcher.Constraint("Equal", 82, 84),
    Sketcher.Constraint("Equal", 78, 86),
    Sketcher.Constraint("Parallel", 1, 7),
    Sketcher.Constraint("Parallel", 7, 13),
    Sketcher.Constraint("Parallel", 13, 19),
    Sketcher.Constraint("Perpendicular", 19, 23),
    Sketcher.Constraint("Parallel", 23, 29),
    Sketcher.Constraint("Parallel", 29, 35),
    Sketcher.Constraint("Parallel", 35, 41),
    Sketcher.Constraint("Perpendicular", 41, 45),
    Sketcher.Constraint("Parallel", 45, 51),
    Sketcher.Constraint("Parallel", 51, 57),
    Sketcher.Constraint("Parallel", 57, 63),
    Sketcher.Constraint("Perpendicular", 63, 67),
    Sketcher.Constraint("Parallel", 67, 73),
    Sketcher.Constraint("Parallel", 73, 79),
    Sketcher.Constraint("Parallel", 79, 85),
    Sketcher.Constraint("Horizontal", 18, 3, 24, 3),
    Sketcher.Constraint("Horizontal", 16, 3, 26, 3),
    Sketcher.Constraint("Horizontal", 12, 3, 30, 3),
    Sketcher.Constraint("Horizontal", 8, 3, 34, 3),
    Sketcher.Constraint("Horizontal", 6, 3, 36, 3),
    Sketcher.Constraint("Horizontal", 4, 3, 38, 3),
    Sketcher.Constraint("Horizontal", 62, 3, 68, 3),
    Sketcher.Constraint("Horizontal", 60, 3, 70, 3),
    Sketcher.Constraint("Horizontal", 56, 3, 74, 3),
    Sketcher.Constraint("Horizontal", 52, 3, 78, 3),
    Sketcher.Constraint("Horizontal", 50, 3, 80, 3),
    Sketcher.Constraint("Horizontal", 48, 3, 82, 3),
    Sketcher.Constraint("Horizontal", 19, 2, 22, 1),
    Sketcher.Constraint("Vertical", 40, 3, 46, 3),
    Sketcher.Constraint("Vertical", 38, 3, 48, 3),
    Sketcher.Constraint("Vertical", 34, 3, 52, 3),
    Sketcher.Constraint("Vertical", 30, 3, 56, 3),
    Sketcher.Constraint("Vertical", 28, 3, 58, 3),
    Sketcher.Constraint("Vertical", 26, 3, 60, 3),
    Sketcher.Constraint("Vertical", 22, 3, 64, 3),
    Sketcher.Constraint("Vertical", 20, 3, 66, 3),
    Sketcher.Constraint("Vertical", 14, 3, 72, 3),
    Sketcher.Constraint("Vertical", 10, 3, 76, 3),
    Sketcher.Constraint("Vertical", 2, 3, 84, 3),
    Sketcher.Constraint("Equal", 15, 27),
    Sketcher.Constraint("Equal", 11, 31),
    Sketcher.Constraint("Equal", 3, 39),
    Sketcher.Constraint("Equal", 71, 5),
    Sketcher.Constraint("Equal", 75, 9),
    Sketcher.Constraint("Equal", 83, 17),
    Sketcher.Constraint("Equal", 65, 43),
    Sketcher.Constraint("Equal", 37, 49),
    Sketcher.Constraint("Equal", 33, 53),
    Sketcher.Constraint("Equal", 25, 61),
    Sketcher.Constraint("Equal", 7, 13),
    Sketcher.Constraint("Equal", 23, 41),
    Sketcher.Constraint("Diameter", 88, Q("4.2 mm")),
    Sketcher.Constraint("Radius", 0, Q("0.3 mm")),
    Sketcher.Constraint("Radius", 10, Q("0.5 mm")),
    Sketcher.Constraint("Radius", 2, Q("0.25 mm")),
    Sketcher.Constraint("DistanceX", 15, 2, 15, 1, Q("1.85 mm")),
    Sketcher.Constraint("DistanceX", 11, 1, 11, 2, Q("4.929289 mm")),
    Sketcher.Constraint("DistanceX", 21, 1, 21, 2, Q("5.44135 mm")),
    Sketcher.Constraint("DistanceY", 87, 2, 87, 1, Q("5.399929 mm")),
    Sketcher.Constraint("DistanceX", -1, 1, 12, 3, Q("2012.3605 mm")),
    Sketcher.Constraint("DistanceX", 3, 2, 3, 1, Q("1.320675 mm")),
    Sketcher.Constraint("DistanceX", -1, 1, 0, 3, Q("2012.631211 mm")),
    Sketcher.Constraint("DistanceY", -1, 1, 0, 3, Q("1377.300429 mm")),
    Sketcher.Constraint("DistanceX", -1, 1, 4, 3, Q("2008.881211 mm")),
    Sketcher.Constraint("DistanceX", -1, 1, 88, 3, Q("2016.931211 mm")),
    Sketcher.Constraint("DistanceY", -1, 1, 88, 3, Q("1380.000394 mm")),
])
pad1 = body.newObject("PartDesign::Pad", "Pad")
pad1.Profile = sketch1
pad1.Length = 545

doc.recompute()
